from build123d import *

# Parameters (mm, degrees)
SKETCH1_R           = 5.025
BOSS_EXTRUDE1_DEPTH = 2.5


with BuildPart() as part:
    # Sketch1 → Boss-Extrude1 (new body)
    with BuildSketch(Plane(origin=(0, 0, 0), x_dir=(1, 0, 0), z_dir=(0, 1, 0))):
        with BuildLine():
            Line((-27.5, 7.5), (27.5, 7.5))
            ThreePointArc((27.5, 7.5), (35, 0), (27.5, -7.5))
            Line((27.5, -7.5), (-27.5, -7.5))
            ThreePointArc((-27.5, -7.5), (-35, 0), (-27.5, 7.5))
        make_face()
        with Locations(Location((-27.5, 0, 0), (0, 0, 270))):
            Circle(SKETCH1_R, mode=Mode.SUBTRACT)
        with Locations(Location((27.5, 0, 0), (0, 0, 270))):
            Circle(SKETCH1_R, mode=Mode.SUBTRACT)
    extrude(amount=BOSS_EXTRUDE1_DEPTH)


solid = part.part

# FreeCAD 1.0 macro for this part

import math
import FreeCAD as App
import Part
import Sketcher

V = App.Vector

doc = App.newDocument("Part")
params = doc.addObject("Spreadsheet::Sheet", "Params")
for row, (alias, value) in enumerate([
    ("sketch1_radius", "7.5 mm"),
    ("sketch1_diameter", "10.05 mm"),
    ("sketch1_width", "55 mm"),
    ("pad1_length", "2.5 mm"),
], start=1):
    params.set(f"A{row}", alias)
    params.set(f"B{row}", "=" + value)
    params.setAlias(f"B{row}", alias)

body = doc.addObject("PartDesign::Body", "Body")

sketch1 = body.newObject("Sketcher::SketchObject", "Sketch")
sketch1.AttachmentSupport = (doc.getObject("XZ_Plane"), [""])
sketch1.MapMode = "FlatFace"
sketch1.addGeometry([
    Part.LineSegment(V(27.5, -7.5, 0), V(-27.5, -7.5, 0)),
    Part.ArcOfCircle(Part.Circle(V(-27.5, 0, 0), V(0, 0, 1), 7.5), math.radians(90), math.radians(270)),
    Part.LineSegment(V(-27.5, 7.5, 0), V(27.5, 7.5, 0)),
    Part.ArcOfCircle(Part.Circle(V(27.5, 0, 0), V(0, 0, 1), 7.5), math.radians(-90), math.radians(90)),
    Part.Circle(V(27.5, 0, 0), V(0, 0, 1), 5.025),
    Part.Circle(V(-27.5, 0, 0), V(0, 0, 1), 5.025),
], False)
sketch1.addConstraint([
    Sketcher.Constraint("Tangent", 0, 2, 1, 2),
    Sketcher.Constraint("Tangent", 1, 1, 2, 1),
    Sketcher.Constraint("Tangent", 2, 2, 3, 2),
    Sketcher.Constraint("Tangent", 3, 1, 0, 1),
    Sketcher.Constraint("Horizontal", 0),
    Sketcher.Constraint("Horizontal", 2),
    Sketcher.Constraint("Coincident", 4, 3, 3, 3),
    Sketcher.Constraint("Coincident", 5, 3, 1, 3),
    Sketcher.Constraint("Equal", 4, 5),
    Sketcher.Constraint("Symmetric", 1, 3, 3, 3, -1, 1),
    Sketcher.Constraint("Radius", 1, 7.5),
    Sketcher.Constraint("Diameter", 4, 10.05),
    Sketcher.Constraint("DistanceX", 0, 2, 0, 1, 55.0),
])
sketch1.setExpression("Constraints[10]", "Params.sketch1_radius")
sketch1.setExpression("Constraints[11]", "Params.sketch1_diameter")
sketch1.setExpression("Constraints[12]", "Params.sketch1_width")
pad1 = body.newObject("PartDesign::Pad", "Pad")
pad1.Profile = sketch1
pad1.setExpression("Length", "Params.pad1_length")
pad1.Reversed = True

doc.recompute()
